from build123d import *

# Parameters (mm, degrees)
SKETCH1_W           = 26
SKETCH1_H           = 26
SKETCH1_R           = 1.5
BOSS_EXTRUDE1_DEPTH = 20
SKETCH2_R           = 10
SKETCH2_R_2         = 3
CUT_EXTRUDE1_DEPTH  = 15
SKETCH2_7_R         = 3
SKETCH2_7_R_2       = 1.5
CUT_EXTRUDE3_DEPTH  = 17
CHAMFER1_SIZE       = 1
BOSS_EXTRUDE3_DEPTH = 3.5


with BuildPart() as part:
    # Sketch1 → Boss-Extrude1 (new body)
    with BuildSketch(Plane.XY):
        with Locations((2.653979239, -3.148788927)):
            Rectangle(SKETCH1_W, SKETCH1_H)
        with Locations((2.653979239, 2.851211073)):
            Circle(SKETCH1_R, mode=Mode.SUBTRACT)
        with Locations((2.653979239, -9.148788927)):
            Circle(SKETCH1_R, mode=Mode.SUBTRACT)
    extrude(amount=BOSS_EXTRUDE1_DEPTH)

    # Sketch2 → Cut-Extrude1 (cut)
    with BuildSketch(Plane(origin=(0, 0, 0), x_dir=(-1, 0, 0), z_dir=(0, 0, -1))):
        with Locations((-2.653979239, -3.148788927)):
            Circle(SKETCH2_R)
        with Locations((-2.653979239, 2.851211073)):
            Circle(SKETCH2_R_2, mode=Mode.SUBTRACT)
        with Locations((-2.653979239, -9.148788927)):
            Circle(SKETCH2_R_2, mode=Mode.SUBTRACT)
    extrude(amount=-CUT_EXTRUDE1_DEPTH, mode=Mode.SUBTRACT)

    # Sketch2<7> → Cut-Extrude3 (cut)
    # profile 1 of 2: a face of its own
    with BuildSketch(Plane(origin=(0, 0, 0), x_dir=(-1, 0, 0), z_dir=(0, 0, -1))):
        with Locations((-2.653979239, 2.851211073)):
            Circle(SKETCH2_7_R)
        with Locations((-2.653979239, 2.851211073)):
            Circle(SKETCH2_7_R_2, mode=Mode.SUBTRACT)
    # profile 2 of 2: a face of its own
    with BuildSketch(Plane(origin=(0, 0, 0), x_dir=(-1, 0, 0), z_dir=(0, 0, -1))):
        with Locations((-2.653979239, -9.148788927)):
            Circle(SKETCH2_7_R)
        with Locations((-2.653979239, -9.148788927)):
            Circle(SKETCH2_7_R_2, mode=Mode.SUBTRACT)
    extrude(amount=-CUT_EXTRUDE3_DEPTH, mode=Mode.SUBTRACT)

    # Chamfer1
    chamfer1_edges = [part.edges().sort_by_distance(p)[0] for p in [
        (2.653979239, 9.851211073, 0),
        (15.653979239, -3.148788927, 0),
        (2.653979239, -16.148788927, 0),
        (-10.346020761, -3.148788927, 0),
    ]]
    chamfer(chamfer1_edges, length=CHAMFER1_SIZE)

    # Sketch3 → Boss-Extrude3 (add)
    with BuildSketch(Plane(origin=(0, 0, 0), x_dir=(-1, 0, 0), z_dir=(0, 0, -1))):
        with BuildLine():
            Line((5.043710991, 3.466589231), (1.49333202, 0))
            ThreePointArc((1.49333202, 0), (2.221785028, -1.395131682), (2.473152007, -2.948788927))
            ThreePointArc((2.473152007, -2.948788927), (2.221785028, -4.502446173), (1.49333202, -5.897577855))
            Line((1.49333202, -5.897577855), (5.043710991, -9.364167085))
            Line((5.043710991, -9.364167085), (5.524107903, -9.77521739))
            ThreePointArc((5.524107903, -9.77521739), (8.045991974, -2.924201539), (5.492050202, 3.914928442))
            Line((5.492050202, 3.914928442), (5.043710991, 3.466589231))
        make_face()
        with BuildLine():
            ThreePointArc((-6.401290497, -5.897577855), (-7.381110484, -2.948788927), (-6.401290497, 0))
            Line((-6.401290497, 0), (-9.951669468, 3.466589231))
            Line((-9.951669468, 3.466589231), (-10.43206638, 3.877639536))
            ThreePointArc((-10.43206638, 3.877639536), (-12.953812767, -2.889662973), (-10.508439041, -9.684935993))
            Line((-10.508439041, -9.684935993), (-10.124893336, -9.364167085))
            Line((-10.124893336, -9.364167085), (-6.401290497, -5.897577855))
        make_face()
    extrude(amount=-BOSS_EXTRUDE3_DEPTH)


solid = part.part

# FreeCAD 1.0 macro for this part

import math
import FreeCAD as App
import Part
import Sketcher
from FreeCAD import Vector
Q = App.Units.Quantity


def edges_at(feature, points):
    """Names of the edges that pass closest to the given points."""
    edges = feature.Shape.Edges
    near = lambda p: min(range(len(edges)), key=lambda i: edges[i].distToShape(Part.Vertex(*p))[0])
    return sorted({f"Edge{near(p) + 1}" for p in points})

doc = App.newDocument("Part")
body = doc.addObject("PartDesign::Body", "Body")

sketch1 = body.newObject("Sketcher::SketchObject", "Sketch")
sketch1.AttachmentSupport = (doc.getObject("XY_Plane"), [""])
sketch1.MapMode = "FlatFace"
sketch1.addGeometry(Part.LineSegment(Vector(-10.3, 9.9, 0), Vector(-10.3, -16.1, 0)), False)
sketch1.addGeometry(Part.LineSegment(Vector(-10.3, -16.1, 0), Vector(15.7, -16.1, 0)), False)
sketch1.addGeometry(Part.LineSegment(Vector(15.7, -16.1, 0), Vector(15.7, 9.9, 0)), False)
sketch1.addGeometry(Part.LineSegment(Vector(15.7, 9.9, 0), Vector(-10.3, 9.9, 0)), False)
sketch1.addGeometry(Part.Circle(Vector(2.7, -9.1, 0), Vector(0, 0, 1), 1.5), False)
sketch1.addGeometry(Part.Circle(Vector(2.7, 2.9, 0), Vector(0, 0, 1), 1.5), False)
sketch1.addConstraint(Sketcher.Constraint("Coincident", 0, 2, 1, 1))
sketch1.addConstraint(Sketcher.Constraint("Coincident", 1, 2, 2, 1))
sketch1.addConstraint(Sketcher.Constraint("Coincident", 2, 2, 3, 1))
sketch1.addConstraint(Sketcher.Constraint("Coincident", 3, 2, 0, 1))
sketch1.addConstraint(Sketcher.Constraint("Vertical", 0))
sketch1.addConstraint(Sketcher.Constraint("Horizontal", 1))
sketch1.addConstraint(Sketcher.Constraint("Vertical", 2))
sketch1.addConstraint(Sketcher.Constraint("Horizontal", 3))
sketch1.addConstraint(Sketcher.Constraint("Equal", 4, 5))
sketch1.addConstraint(Sketcher.Constraint("Vertical", 4, 3, 5, 3))
sketch1.addConstraint(Sketcher.Constraint("Equal", 3, 0))
sketch1.addConstraint(Sketcher.Constraint("Diameter", 4, 3.0))
sketch1.addConstraint(Sketcher.Constraint("DistanceX", 1, 1, 1, 2, 26.0))
sketch1.addConstraint(Sketcher.Constraint("DistanceY", 4, 3, 5, 3, 12.0))
sketch1.addConstraint(Sketcher.Constraint("DistanceX", 0, 2, 4, 3, 13.0))
sketch1.addConstraint(Sketcher.Constraint("DistanceY", 0, 2, 4, 3, 7.0))
sketch1.addConstraint(Sketcher.Constraint("DistanceX", -1, 1, 4, 3, 2.653979))
sketch1.addConstraint(Sketcher.Constraint("DistanceY", 4, 3, -1, 1, 9.148789))
pad1 = body.newObject("PartDesign::Pad", "Pad")
pad1.Profile = sketch1
pad1.Length = 20

sketch2 = body.newObject("Sketcher::SketchObject", "Sketch001")
sketch2.AttachmentSupport = (doc.getObject("XY_Plane"), [""])
sketch2.MapMode = "FlatFace"
sketch2.addGeometry(Part.Circle(Vector(2.7, -3.1, 0), Vector(0, 0, 1), 10), False)
sketch2.addGeometry(Part.Circle(Vector(2.7, -9.1, 0), Vector(0, 0, 1), 3), False)
sketch2.addGeometry(Part.Circle(Vector(2.7, 2.9, 0), Vector(0, 0, 1), 3), False)
sketch2.addConstraint(Sketcher.Constraint("Equal", 1, 2))
sketch2.addConstraint(Sketcher.Constraint("Vertical", 0, 3, 1, 3))
sketch2.addConstraint(Sketcher.Constraint("Vertical", 1, 3, 2, 3))
sketch2.addConstraint(Sketcher.Constraint("Diameter", 0, 20.0))
sketch2.addConstraint(Sketcher.Constraint("Diameter", 1, 6.0))
sketch2.addConstraint(Sketcher.Constraint("DistanceY", 1, 3, 0, 3, 6.0))
sketch2.addConstraint(Sketcher.Constraint("DistanceY", 0, 3, 2, 3, 6.0))
sketch2.addConstraint(Sketcher.Constraint("DistanceX", -1, 1, 0, 3, 2.653979))
sketch2.addConstraint(Sketcher.Constraint("DistanceY", 0, 3, -1, 1, 3.148789))
pocket1 = body.newObject("PartDesign::Pocket", "Pocket")
pocket1.Profile = sketch2
pocket1.Length = 15
pocket1.Reversed = True

sketch3 = body.newObject("Sketcher::SketchObject", "Sketch002")
sketch3.AttachmentSupport = (doc.getObject("XY_Plane"), [""])
sketch3.MapMode = "FlatFace"
sketch3.addGeometry(Part.Circle(Vector(2.7, 2.9, 0), Vector(0, 0, 1), 3), False)
sketch3.addGeometry(Part.Circle(Vector(2.7, 2.9, 0), Vector(0, 0, 1), 1.5), False)
sketch3.addGeometry(Part.Circle(Vector(2.7, -9.1, 0), Vector(0, 0, 1), 3), False)
sketch3.addGeometry(Part.Circle(Vector(2.7, -9.1, 0), Vector(0, 0, 1), 1.5), False)
sketch3.addConstraint(Sketcher.Constraint("Coincident", 1, 3, 0, 3))
sketch3.addConstraint(Sketcher.Constraint("Coincident", 3, 3, 2, 3))
sketch3.addConstraint(Sketcher.Constraint("Equal", 0, 2))
sketch3.addConstraint(Sketcher.Constraint("Equal", 1, 3))
sketch3.addConstraint(Sketcher.Constraint("Vertical", 1, 3, 2, 3))
sketch3.addConstraint(Sketcher.Constraint("Diameter", 0, 6.0))
sketch3.addConstraint(Sketcher.Constraint("Diameter", 1, 3.0))
sketch3.addConstraint(Sketcher.Constraint("DistanceY", 2, 3, 0, 3, 12.0))
sketch3.addConstraint(Sketcher.Constraint("DistanceX", -1, 1, 0, 3, 2.653979))
sketch3.addConstraint(Sketcher.Constraint("DistanceY", -1, 1, 0, 3, 2.851211))
pocket2 = body.newObject("PartDesign::Pocket", "Pocket001")
pocket2.Profile = sketch3
pocket2.Length = 17
pocket2.Reversed = True
doc.recompute()

chamfer = body.newObject("PartDesign::Chamfer", "Chamfer")
chamfer.Base = (pocket2, edges_at(pocket2, [
    (2.654, 9.851, 0),
    (15.654, -3.149, 0),
    (2.654, -16.149, 0),
    (-10.346, -3.149, 0),
]))
chamfer.Size = 1

sketch4 = body.newObject("Sketcher::SketchObject", "Sketch003")
sketch4.AttachmentSupport = (doc.getObject("XY_Plane"), [""])
sketch4.MapMode = "FlatFace"
sketch4.addGeometry(Part.LineSegment(Vector(-5, 3.5, 0), Vector(-1.5, 0, 0)), False)
sketch4.addGeometry(Part.ArcOfCircle(Part.Circle(Vector(2.5, -2.9, 0), Vector(0, 0, 1), 4.9), math.radians(143), math.radians(180)), False)
sketch4.addGeometry(Part.ArcOfCircle(Part.Circle(Vector(2.5, -2.9, 0), Vector(0, 0, 1), 4.9), math.radians(180), math.radians(217)), False)
sketch4.addGeometry(Part.LineSegment(Vector(-1.5, -5.9, 0), Vector(-5, -9.4, 0)), False)
sketch4.addGeometry(Part.LineSegment(Vector(-5, -9.4, 0), Vector(-5.5, -9.8, 0)), False)
sketch4.addGeometry(Part.ArcOfCircle(Part.Circle(Vector(2.5, -2.9, 0), Vector(0, 0, 1), 10.5), math.radians(139), math.radians(221)), False)
sketch4.addGeometry(Part.LineSegment(Vector(-5.5, 3.9, 0), Vector(-5, 3.5, 0)), False)
sketch4.addGeometry(Part.ArcOfCircle(Part.Circle(Vector(2.5, -2.9, 0), Vector(0, 0, 1), 4.9), math.radians(-37), math.radians(37)), False)
sketch4.addGeometry(Part.LineSegment(Vector(6.4, 0, 0), Vector(10, 3.5, 0)), False)
sketch4.addGeometry(Part.LineSegment(Vector(10, 3.5, 0), Vector(10.4, 3.9, 0)), False)
sketch4.addGeometry(Part.ArcOfCircle(Part.Circle(Vector(2.5, -2.9, 0), Vector(0, 0, 1), 10.5), math.radians(-40), math.radians(41)), False)
sketch4.addGeometry(Part.LineSegment(Vector(10.5, -9.7, 0), Vector(10.1, -9.4, 0)), False)
sketch4.addGeometry(Part.LineSegment(Vector(10.1, -9.4, 0), Vector(6.4, -5.9, 0)), False)
sketch4.addConstraint(Sketcher.Constraint("Coincident", 0, 2, 1, 1))
sketch4.addConstraint(Sketcher.Constraint("Tangent", 1, 2, 2, 1))
sketch4.addConstraint(Sketcher.Constraint("Coincident", 2, 2, 3, 1))
sketch4.addConstraint(Sketcher.Constraint("Coincident", 3, 2, 4, 1))
sketch4.addConstraint(Sketcher.Constraint("Coincident", 4, 2, 5, 2))
sketch4.addConstraint(Sketcher.Constraint("Coincident", 5, 1, 6, 1))
sketch4.addConstraint(Sketcher.Constraint("Coincident", 6, 2, 0, 1))
sketch4.addConstraint(Sketcher.Constraint("Coincident", 7, 2, 8, 1))
sketch4.addConstraint(Sketcher.Constraint("Coincident", 8, 2, 9, 1))
sketch4.addConstraint(Sketcher.Constraint("Coincident", 9, 2, 10, 2))
sketch4.addConstraint(Sketcher.Constraint("Coincident", 10, 1, 11, 1))
sketch4.addConstraint(Sketcher.Constraint("Coincident", 11, 2, 12, 1))
sketch4.addConstraint(Sketcher.Constraint("Coincident", 12, 2, 7, 1))
sketch4.addConstraint(Sketcher.Constraint("Coincident", 5, 3, 1, 3))
sketch4.addConstraint(Sketcher.Constraint("Coincident", 7, 3, 1, 3))
sketch4.addConstraint(Sketcher.Constraint("Coincident", 10, 3, 1, 3))
sketch4.addConstraint(Sketcher.Constraint("Equal", 1, 2))
sketch4.addConstraint(Sketcher.Constraint("Equal", 2, 7))
sketch4.addConstraint(Sketcher.Constraint("Equal", 5, 10))
sketch4.addConstraint(Sketcher.Constraint("PointOnObject", 0, 2, -1))
sketch4.addConstraint(Sketcher.Constraint("PointOnObject", 7, 2, -1))
sketch4.addConstraint(Sketcher.Constraint("Parallel", 3, 8))
sketch4.addConstraint(Sketcher.Constraint("Parallel", 4, 9))
sketch4.addConstraint(Sketcher.Constraint("Horizontal", 10, 3, 1, 2))
sketch4.addConstraint(Sketcher.Constraint("Horizontal", 6, 2, 8, 2))
sketch4.addConstraint(Sketcher.Constraint("Horizontal", 3, 2, 11, 2))
sketch4.addConstraint(Sketcher.Constraint("Horizontal", 2, 2, 12, 2))
sketch4.addConstraint(Sketcher.Constraint("Vertical", 0, 2, 2, 2))
sketch4.addConstraint(Sketcher.Constraint("Vertical", 3, 2, 6, 2))
sketch4.addConstraint(Sketcher.Constraint("Equal", 0, 3))
sketch4.addConstraint(Sketcher.Constraint("Radius", 5, 10.5))
sketch4.addConstraint(Sketcher.Constraint("Angle", 6, Q("-45 deg")))
sketch4.addConstraint(Sketcher.Constraint("Distance", 11, 0.5))
sketch4.addConstraint(Sketcher.Constraint("Radius", 1, 4.927131))
sketch4.addConstraint(Sketcher.Constraint("Distance", 0, 4.9621))
sketch4.addConstraint(Sketcher.Constraint("DistanceX", 5, 1, 1, 2, 3.018898))
sketch4.addConstraint(Sketcher.Constraint("Distance", 12, 5.087481))
sketch4.addConstraint(Sketcher.Constraint("DistanceX", -1, 1, 1, 3, 2.453979))
sketch4.addConstraint(Sketcher.Constraint("DistanceY", -1, 1, 9, 2, 3.87764))
sketch4.addConstraint(Sketcher.Constraint("DistanceX", -1, 1, 10, 1, 10.508439))
pad2 = body.newObject("PartDesign::Pad", "Pad001")
pad2.Profile = sketch4
pad2.Length = 3.5

doc.recompute()
